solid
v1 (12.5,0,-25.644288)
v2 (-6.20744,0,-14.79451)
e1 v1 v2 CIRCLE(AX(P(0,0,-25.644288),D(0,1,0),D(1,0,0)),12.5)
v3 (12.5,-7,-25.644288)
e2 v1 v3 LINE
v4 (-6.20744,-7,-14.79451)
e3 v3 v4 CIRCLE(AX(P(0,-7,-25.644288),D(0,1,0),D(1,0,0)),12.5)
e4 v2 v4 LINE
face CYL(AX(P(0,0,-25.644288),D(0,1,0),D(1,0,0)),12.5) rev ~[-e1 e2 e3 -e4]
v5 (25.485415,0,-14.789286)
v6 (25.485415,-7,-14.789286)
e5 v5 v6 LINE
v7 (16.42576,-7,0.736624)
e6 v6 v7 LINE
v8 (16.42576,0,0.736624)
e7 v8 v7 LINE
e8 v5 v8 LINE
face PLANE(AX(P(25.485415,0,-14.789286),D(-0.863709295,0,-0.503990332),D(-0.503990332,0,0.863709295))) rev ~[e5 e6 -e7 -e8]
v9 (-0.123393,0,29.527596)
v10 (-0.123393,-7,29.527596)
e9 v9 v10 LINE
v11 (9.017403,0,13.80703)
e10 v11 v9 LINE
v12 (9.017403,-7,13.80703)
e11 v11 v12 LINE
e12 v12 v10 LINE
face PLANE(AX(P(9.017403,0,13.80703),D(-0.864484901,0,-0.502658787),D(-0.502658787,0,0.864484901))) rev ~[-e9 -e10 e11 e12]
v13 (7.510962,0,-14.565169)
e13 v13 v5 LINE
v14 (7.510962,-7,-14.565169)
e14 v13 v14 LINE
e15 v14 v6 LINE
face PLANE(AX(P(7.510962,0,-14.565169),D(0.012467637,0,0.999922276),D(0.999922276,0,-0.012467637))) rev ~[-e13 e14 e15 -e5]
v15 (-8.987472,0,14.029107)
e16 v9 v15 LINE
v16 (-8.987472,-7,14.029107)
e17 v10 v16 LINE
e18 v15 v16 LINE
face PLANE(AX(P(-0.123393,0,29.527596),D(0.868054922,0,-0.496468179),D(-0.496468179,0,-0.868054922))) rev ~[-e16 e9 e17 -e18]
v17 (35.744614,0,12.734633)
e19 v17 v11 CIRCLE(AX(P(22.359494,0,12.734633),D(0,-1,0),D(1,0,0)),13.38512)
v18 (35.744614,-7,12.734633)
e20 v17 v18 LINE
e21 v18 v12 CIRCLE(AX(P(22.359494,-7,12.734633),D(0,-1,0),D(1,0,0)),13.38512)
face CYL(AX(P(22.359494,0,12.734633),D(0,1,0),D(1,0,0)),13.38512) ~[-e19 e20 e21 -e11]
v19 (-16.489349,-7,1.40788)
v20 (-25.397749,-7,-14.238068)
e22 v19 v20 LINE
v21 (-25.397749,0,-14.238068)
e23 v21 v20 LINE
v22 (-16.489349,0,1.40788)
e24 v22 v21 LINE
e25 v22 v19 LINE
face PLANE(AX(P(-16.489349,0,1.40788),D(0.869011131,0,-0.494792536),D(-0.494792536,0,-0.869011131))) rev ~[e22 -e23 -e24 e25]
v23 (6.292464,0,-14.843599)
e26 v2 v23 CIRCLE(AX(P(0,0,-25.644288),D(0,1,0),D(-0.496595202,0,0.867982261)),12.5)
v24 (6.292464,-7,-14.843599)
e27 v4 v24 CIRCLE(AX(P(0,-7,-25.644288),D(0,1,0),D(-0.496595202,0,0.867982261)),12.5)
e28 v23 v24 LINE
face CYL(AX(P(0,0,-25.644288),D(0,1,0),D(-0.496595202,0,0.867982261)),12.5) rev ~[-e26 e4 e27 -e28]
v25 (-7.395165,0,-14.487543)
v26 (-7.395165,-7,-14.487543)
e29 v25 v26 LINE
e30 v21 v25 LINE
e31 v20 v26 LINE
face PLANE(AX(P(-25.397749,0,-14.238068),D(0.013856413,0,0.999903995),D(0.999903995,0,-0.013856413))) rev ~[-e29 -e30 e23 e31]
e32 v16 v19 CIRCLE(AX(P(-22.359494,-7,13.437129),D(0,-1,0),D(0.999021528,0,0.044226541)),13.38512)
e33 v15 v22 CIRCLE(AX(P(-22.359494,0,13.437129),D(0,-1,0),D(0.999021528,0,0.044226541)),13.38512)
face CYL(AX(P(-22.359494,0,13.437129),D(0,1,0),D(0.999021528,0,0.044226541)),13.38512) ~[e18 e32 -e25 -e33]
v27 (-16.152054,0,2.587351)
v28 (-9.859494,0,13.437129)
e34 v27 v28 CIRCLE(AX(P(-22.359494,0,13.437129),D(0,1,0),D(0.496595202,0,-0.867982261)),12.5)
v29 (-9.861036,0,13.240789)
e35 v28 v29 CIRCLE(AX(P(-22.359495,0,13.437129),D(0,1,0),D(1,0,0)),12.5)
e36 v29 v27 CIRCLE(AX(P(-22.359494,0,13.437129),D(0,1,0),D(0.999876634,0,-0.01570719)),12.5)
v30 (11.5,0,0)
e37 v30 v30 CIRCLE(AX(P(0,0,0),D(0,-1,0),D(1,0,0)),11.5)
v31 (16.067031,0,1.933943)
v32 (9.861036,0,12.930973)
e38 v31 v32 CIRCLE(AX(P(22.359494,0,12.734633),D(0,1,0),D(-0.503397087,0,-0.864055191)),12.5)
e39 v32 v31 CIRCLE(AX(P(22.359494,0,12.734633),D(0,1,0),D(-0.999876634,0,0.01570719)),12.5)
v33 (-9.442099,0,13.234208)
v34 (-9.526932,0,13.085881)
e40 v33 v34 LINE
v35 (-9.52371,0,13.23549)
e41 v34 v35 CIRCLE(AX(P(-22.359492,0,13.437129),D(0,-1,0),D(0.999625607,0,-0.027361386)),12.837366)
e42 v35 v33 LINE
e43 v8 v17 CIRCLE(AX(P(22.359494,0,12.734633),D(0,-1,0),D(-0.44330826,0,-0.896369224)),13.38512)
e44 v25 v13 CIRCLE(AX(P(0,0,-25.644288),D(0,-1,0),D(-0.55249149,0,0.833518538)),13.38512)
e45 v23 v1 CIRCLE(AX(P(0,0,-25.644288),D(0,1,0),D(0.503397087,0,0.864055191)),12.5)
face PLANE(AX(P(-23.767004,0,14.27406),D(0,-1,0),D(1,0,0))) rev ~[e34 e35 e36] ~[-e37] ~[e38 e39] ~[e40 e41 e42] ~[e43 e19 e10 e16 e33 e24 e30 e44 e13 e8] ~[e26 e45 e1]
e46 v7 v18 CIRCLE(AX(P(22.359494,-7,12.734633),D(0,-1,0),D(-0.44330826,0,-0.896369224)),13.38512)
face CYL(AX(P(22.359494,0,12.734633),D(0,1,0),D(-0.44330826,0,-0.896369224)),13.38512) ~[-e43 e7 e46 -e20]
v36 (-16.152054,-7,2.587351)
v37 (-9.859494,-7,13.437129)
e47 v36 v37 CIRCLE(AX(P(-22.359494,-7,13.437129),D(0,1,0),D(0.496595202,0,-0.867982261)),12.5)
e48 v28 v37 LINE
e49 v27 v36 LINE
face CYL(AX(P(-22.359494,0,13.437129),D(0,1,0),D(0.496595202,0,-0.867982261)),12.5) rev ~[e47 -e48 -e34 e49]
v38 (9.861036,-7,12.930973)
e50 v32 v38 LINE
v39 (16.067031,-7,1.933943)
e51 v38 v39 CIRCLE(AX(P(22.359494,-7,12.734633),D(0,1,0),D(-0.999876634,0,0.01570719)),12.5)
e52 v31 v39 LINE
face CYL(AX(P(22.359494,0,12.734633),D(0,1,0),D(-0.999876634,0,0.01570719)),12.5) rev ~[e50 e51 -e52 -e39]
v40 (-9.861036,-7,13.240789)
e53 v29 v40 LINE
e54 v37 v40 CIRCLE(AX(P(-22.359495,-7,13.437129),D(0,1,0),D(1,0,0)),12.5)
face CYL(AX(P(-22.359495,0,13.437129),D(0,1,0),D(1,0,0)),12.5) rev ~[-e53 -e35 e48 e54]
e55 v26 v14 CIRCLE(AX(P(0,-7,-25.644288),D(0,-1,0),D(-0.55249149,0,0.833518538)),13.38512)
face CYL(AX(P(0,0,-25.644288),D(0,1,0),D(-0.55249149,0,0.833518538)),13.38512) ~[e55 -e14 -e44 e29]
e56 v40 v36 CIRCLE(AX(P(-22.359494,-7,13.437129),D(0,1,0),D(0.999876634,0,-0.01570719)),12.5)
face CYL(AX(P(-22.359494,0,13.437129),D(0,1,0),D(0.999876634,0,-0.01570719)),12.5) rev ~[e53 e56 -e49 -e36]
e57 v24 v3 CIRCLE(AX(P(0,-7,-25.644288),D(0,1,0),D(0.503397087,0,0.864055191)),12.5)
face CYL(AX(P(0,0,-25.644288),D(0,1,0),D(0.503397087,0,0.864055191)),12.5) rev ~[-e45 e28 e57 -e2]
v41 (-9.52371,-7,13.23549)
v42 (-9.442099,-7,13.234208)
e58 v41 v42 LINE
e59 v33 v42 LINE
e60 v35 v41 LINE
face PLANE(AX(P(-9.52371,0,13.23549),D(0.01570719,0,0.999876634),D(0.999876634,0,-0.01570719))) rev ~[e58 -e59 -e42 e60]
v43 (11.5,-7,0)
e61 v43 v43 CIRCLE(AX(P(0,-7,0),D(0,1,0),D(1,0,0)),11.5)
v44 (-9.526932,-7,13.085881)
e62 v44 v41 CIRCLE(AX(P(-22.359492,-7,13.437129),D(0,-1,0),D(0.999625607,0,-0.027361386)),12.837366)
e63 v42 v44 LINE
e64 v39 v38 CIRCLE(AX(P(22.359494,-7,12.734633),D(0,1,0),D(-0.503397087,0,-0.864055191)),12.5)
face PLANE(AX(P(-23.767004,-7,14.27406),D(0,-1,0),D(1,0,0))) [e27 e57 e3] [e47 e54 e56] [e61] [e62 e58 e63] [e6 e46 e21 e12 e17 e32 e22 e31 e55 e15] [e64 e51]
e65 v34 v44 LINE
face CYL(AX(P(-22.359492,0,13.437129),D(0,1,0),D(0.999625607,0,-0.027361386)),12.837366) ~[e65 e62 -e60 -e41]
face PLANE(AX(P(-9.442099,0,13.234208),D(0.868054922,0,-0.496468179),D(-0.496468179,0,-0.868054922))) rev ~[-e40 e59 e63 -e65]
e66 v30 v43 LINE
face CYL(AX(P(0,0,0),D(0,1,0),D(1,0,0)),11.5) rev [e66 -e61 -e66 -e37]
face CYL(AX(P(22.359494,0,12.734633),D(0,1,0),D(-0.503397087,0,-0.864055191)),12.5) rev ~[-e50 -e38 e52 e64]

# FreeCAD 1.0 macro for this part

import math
import FreeCAD as App
import Part
import Sketcher
Q = App.Units.Quantity

doc = App.newDocument("Part")
body = doc.addObject("PartDesign::Body", "Body")

sketch1 = doc.addObject("Sketcher::SketchObject", "Sketch")
body.addObject(sketch1)
sketch1.AttachmentSupport = (doc.XZ_Plane, [""])
sketch1.MapMode = "FlatFace"
sketch1.addGeometry(Part.LineSegment(App.Vector(25.485415, -14.789286, 0), App.Vector(16.42576, 0.736624, 0)), False)
sketch1.addGeometry(Part.ArcOfCircle(Part.Circle(App.Vector(22.359494, 12.734633, 0), App.Vector(0, 0, 1), 13.38512), math.radians(-116.315152), math.radians(0)), False)
sketch1.addGeometry(Part.ArcOfCircle(Part.Circle(App.Vector(22.359494, 12.734633, 0), App.Vector(0, 0, 1), 13.38512), math.radians(0), math.radians(175.404616)), False)
sketch1.addGeometry(Part.LineSegment(App.Vector(9.017403, 13.80703, 0), App.Vector(-0.123393, 29.527596, 0)), False)
sketch1.addGeometry(Part.LineSegment(App.Vector(-0.123393, 29.527596, 0), App.Vector(-8.987472, 14.029107, 0)), False)
sketch1.addGeometry(Part.ArcOfCircle(Part.Circle(App.Vector(-22.359494, 13.437129, 0), App.Vector(0, 0, 1), 13.38512), math.radians(2.534821), math.radians(296.011882)), False)
sketch1.addGeometry(Part.LineSegment(App.Vector(-16.489349, 1.40788, 0), App.Vector(-25.397749, -14.238068, 0)), False)
sketch1.addGeometry(Part.LineSegment(App.Vector(-25.397749, -14.238068, 0), App.Vector(-7.395165, -14.487543, 0)), False)
sketch1.addGeometry(Part.ArcOfCircle(Part.Circle(App.Vector(0, -25.644288, 0), App.Vector(0, 0, 1), 13.38512), math.radians(123.538108), math.radians(415.865142)), False)
sketch1.addGeometry(Part.LineSegment(App.Vector(7.510962, -14.565169, 0), App.Vector(25.485415, -14.789286, 0)), False)
sketch1.addGeometry(Part.ArcOfCircle(Part.Circle(App.Vector(22.359494, 12.734633, 0), App.Vector(0, 0, 1), 12.5), math.radians(-120.225005), math.radians(179.100007)), False)
sketch1.addGeometry(Part.ArcOfCircle(Part.Circle(App.Vector(22.359494, 12.734633, 0), App.Vector(0, 0, 1), 12.5), math.radians(179.100007), math.radians(239.774995)), False)
sketch1.addGeometry(Part.ArcOfCircle(Part.Circle(App.Vector(0, -25.644288, 0), App.Vector(0, 0, 1), 12.5), math.radians(0), math.radians(59.774995)), False)
sketch1.addGeometry(Part.ArcOfCircle(Part.Circle(App.Vector(0, -25.644288, 0), App.Vector(0, 0, 1), 12.5), math.radians(119.774995), math.radians(360)), False)
sketch1.addGeometry(Part.ArcOfCircle(Part.Circle(App.Vector(0, -25.644288, 0), App.Vector(0, 0, 1), 12.5), math.radians(59.774995), math.radians(119.774995)), False)
sketch1.addGeometry(Part.ArcOfCircle(Part.Circle(App.Vector(-22.359494, 13.437129, 0), App.Vector(0, 0, 1), 12.5), math.radians(0), math.radians(299.774995)), False)
sketch1.addGeometry(Part.ArcOfCircle(Part.Circle(App.Vector(-22.359495, 13.437129, 0), App.Vector(0, 0, 1), 12.5), math.radians(-0.899993), math.radians(0)), False)
sketch1.addGeometry(Part.ArcOfCircle(Part.Circle(App.Vector(-22.359494, 13.437129, 0), App.Vector(0, 0, 1), 12.5), math.radians(-60.225005), math.radians(-0.899993)), False)
sketch1.addGeometry(Part.LineSegment(App.Vector(-9.52371, 13.23549, 0), App.Vector(-9.442099, 13.234208, 0)), False)
sketch1.addGeometry(Part.LineSegment(App.Vector(-9.442099, 13.234208, 0), App.Vector(-9.526932, 13.085881, 0)), False)
sketch1.addGeometry(Part.ArcOfCircle(Part.Circle(App.Vector(-22.359492, 13.437129, 0), App.Vector(0, 0, 1), 12.837366), math.radians(-1.567888), math.radians(-0.899993)), False)
sketch1.addConstraint(Sketcher.Constraint("Coincident", 0, 2, 1, 1))
sketch1.addConstraint(Sketcher.Constraint("Coincident", 1, 2, 2, 1))
sketch1.addConstraint(Sketcher.Constraint("Coincident", 2, 2, 3, 1))
sketch1.addConstraint(Sketcher.Constraint("Coincident", 3, 2, 4, 1))
sketch1.addConstraint(Sketcher.Constraint("Coincident", 4, 2, 5, 1))
sketch1.addConstraint(Sketcher.Constraint("Coincident", 5, 2, 6, 1))
sketch1.addConstraint(Sketcher.Constraint("Coincident", 6, 2, 7, 1))
sketch1.addConstraint(Sketcher.Constraint("Coincident", 7, 2, 8, 1))
sketch1.addConstraint(Sketcher.Constraint("Coincident", 8, 2, 9, 1))
sketch1.addConstraint(Sketcher.Constraint("Coincident", 9, 2, 0, 1))
sketch1.addConstraint(Sketcher.Constraint("Coincident", 10, 1, 11, 2))
sketch1.addConstraint(Sketcher.Constraint("Coincident", 11, 1, 10, 2))
sketch1.addConstraint(Sketcher.Constraint("Coincident", 12, 1, 13, 2))
sketch1.addConstraint(Sketcher.Constraint("Coincident", 13, 1, 14, 2))
sketch1.addConstraint(Sketcher.Constraint("Coincident", 14, 1, 12, 2))
sketch1.addConstraint(Sketcher.Constraint("Coincident", 15, 1, 16, 2))
sketch1.addConstraint(Sketcher.Constraint("Coincident", 16, 1, 17, 2))
sketch1.addConstraint(Sketcher.Constraint("Coincident", 17, 1, 15, 2))
sketch1.addConstraint(Sketcher.Constraint("Coincident", 18, 2, 19, 1))
sketch1.addConstraint(Sketcher.Constraint("Coincident", 19, 2, 20, 1))
sketch1.addConstraint(Sketcher.Constraint("Coincident", 20, 2, 18, 1))
sketch1.addConstraint(Sketcher.Constraint("Coincident", 2, 3, 1, 3))
sketch1.addConstraint(Sketcher.Constraint("Coincident", 10, 3, 1, 3))
sketch1.addConstraint(Sketcher.Constraint("Coincident", 12, 3, 8, 3))
sketch1.addConstraint(Sketcher.Constraint("Coincident", 13, 3, 8, 3))
sketch1.addConstraint(Sketcher.Constraint("Coincident", 15, 3, 5, 3))
sketch1.addConstraint(Sketcher.Constraint("Coincident", 16, 3, 5, 3))
sketch1.addConstraint(Sketcher.Constraint("Coincident", 20, 3, 5, 3))
sketch1.addConstraint(Sketcher.Constraint("PointOnObject", 8, 3, -2))
sketch1.addConstraint(Sketcher.Constraint("PointOnObject", 14, 3, -2))
sketch1.addConstraint(Sketcher.Constraint("Radius", 10, Q("12.5 mm")))
sketch1.addConstraint(Sketcher.Constraint("Radius", 11, Q("12.5 mm")))
sketch1.addConstraint(Sketcher.Constraint("Radius", 12, Q("12.5 mm")))
sketch1.addConstraint(Sketcher.Constraint("Radius", 15, Q("12.5 mm")))
sketch1.addConstraint(Sketcher.Constraint("Radius", 17, Q("12.5 mm")))
sketch1.addConstraint(Sketcher.Constraint("Radius", 1, Q("13.38512 mm")))
sketch1.addConstraint(Sketcher.Constraint("Radius", 5, Q("13.38512 mm")))
sketch1.addConstraint(Sketcher.Constraint("Radius", 8, Q("13.38512 mm")))
sketch1.addConstraint(Sketcher.Constraint("Radius", 20, Q("12.837366 mm")))
sketch1.addConstraint(Sketcher.Constraint("DistanceY", 14, 1, -1, 1, Q("14.843599 mm")))
sketch1.addConstraint(Sketcher.Constraint("DistanceX", 18, 2, -1, 1, Q("9.442099 mm")))
sketch1.addConstraint(Sketcher.Constraint("DistanceX", 20, 3, 3, 2, Q("22.236099 mm")))
sketch1.addConstraint(Sketcher.Constraint("DistanceX", 6, 2, 5, 2, Q("8.9084 mm")))
sketch1.addConstraint(Sketcher.Constraint("DistanceX", 14, 1, 8, 2, Q("1.218498 mm")))
sketch1.addConstraint(Sketcher.Constraint("DistanceY", 18, 2, 4, 2, Q("0.794899 mm")))
sketch1.addConstraint(Sketcher.Constraint("DistanceY", 20, 2, 16, 1, Q("0.005299 mm")))
sketch1.addConstraint(Sketcher.Constraint("Distance", 0, Q("17.97585 mm")))
sketch1.addConstraint(Sketcher.Constraint("Distance", 9, Q("17.97585 mm")))
sketch1.addConstraint(Sketcher.Constraint("Distance", 18, Q("0.081621 mm")))
sketch1.addConstraint(Sketcher.Constraint("DistanceY", -1, 1, 5, 3, Q("13.437129 mm")))
sketch1.addConstraint(Sketcher.Constraint("DistanceY", 8, 3, -1, 1, Q("25.644288 mm")))
sketch1.addConstraint(Sketcher.Constraint("DistanceX", 20, 3, -1, 1, Q("22.359492 mm")))
sketch1.addConstraint(Sketcher.Constraint("DistanceX", -1, 1, 0, 2, Q("16.42576 mm")))
sketch1.addConstraint(Sketcher.Constraint("DistanceY", -1, 1, 2, 2, Q("13.80703 mm")))
sketch1.addConstraint(Sketcher.Constraint("DistanceX", 5, 2, -1, 1, Q("16.489349 mm")))
sketch1.addConstraint(Sketcher.Constraint("DistanceX", -1, 1, 10, 1, Q("16.067031 mm")))
sketch1.addConstraint(Sketcher.Constraint("DistanceY", 12, 1, -1, 1, Q("25.644288 mm")))
sketch1.addConstraint(Sketcher.Constraint("DistanceX", 13, 1, -1, 1, Q("6.20744 mm")))
sketch1.addConstraint(Sketcher.Constraint("DistanceY", -1, 1, 15, 1, Q("13.437129 mm")))
sketch1.addConstraint(Sketcher.Constraint("DistanceY", -1, 1, 16, 1, Q("13.240789 mm")))
sketch1.addConstraint(Sketcher.Constraint("DistanceY", -1, 1, 17, 1, Q("2.587351 mm")))
sketch1.addConstraint(Sketcher.Constraint("DistanceY", -1, 1, 19, 2, Q("13.085881 mm")))
sketch1.addConstraint(Sketcher.Constraint("DistanceX", 5, 3, 1, 3, Q("44.718989 mm")))
sketch1.addConstraint(Sketcher.Constraint("DistanceY", 8, 3, 1, 3, Q("38.378921 mm")))
sketch1.addConstraint(Sketcher.Constraint("DistanceY", 0, 2, 1, 2, Q("11.998009 mm")))
sketch1.addConstraint(Sketcher.Constraint("DistanceY", 6, 2, 5, 2, Q("15.645948 mm")))
sketch1.addConstraint(Sketcher.Constraint("DistanceY", 11, 3, 11, 1, Q("0.19634 mm")))
sketch1.addConstraint(Sketcher.Constraint("Distance", 3, Q("18.184894 mm")))
sketch1.addConstraint(Sketcher.Constraint("Distance", 7, Q("18.004313 mm")))
pad1 = doc.addObject("PartDesign::Pad", "Pad")
body.addObject(pad1)
pad1.Profile = sketch1
pad1.Length = 7

sketch2 = doc.addObject("Sketcher::SketchObject", "Sketch001")
body.addObject(sketch2)
sketch2.AttachmentSupport = (doc.XZ_Plane, [""])
sketch2.MapMode = "FlatFace"
sketch2.addGeometry(Part.Circle(App.Vector(0, 0, 0), App.Vector(0, 0, 1), 11.5), False)
sketch2.addConstraint(Sketcher.Constraint("Coincident", 0, 3, -1, 1))
sketch2.addConstraint(Sketcher.Constraint("Diameter", 0, Q("23 mm")))
pocket1 = doc.addObject("PartDesign::Pocket", "Pocket")
body.addObject(pocket1)
pocket1.Profile = sketch2
pocket1.Length = 26.416
pocket1.Reversed = True

doc.recompute()
